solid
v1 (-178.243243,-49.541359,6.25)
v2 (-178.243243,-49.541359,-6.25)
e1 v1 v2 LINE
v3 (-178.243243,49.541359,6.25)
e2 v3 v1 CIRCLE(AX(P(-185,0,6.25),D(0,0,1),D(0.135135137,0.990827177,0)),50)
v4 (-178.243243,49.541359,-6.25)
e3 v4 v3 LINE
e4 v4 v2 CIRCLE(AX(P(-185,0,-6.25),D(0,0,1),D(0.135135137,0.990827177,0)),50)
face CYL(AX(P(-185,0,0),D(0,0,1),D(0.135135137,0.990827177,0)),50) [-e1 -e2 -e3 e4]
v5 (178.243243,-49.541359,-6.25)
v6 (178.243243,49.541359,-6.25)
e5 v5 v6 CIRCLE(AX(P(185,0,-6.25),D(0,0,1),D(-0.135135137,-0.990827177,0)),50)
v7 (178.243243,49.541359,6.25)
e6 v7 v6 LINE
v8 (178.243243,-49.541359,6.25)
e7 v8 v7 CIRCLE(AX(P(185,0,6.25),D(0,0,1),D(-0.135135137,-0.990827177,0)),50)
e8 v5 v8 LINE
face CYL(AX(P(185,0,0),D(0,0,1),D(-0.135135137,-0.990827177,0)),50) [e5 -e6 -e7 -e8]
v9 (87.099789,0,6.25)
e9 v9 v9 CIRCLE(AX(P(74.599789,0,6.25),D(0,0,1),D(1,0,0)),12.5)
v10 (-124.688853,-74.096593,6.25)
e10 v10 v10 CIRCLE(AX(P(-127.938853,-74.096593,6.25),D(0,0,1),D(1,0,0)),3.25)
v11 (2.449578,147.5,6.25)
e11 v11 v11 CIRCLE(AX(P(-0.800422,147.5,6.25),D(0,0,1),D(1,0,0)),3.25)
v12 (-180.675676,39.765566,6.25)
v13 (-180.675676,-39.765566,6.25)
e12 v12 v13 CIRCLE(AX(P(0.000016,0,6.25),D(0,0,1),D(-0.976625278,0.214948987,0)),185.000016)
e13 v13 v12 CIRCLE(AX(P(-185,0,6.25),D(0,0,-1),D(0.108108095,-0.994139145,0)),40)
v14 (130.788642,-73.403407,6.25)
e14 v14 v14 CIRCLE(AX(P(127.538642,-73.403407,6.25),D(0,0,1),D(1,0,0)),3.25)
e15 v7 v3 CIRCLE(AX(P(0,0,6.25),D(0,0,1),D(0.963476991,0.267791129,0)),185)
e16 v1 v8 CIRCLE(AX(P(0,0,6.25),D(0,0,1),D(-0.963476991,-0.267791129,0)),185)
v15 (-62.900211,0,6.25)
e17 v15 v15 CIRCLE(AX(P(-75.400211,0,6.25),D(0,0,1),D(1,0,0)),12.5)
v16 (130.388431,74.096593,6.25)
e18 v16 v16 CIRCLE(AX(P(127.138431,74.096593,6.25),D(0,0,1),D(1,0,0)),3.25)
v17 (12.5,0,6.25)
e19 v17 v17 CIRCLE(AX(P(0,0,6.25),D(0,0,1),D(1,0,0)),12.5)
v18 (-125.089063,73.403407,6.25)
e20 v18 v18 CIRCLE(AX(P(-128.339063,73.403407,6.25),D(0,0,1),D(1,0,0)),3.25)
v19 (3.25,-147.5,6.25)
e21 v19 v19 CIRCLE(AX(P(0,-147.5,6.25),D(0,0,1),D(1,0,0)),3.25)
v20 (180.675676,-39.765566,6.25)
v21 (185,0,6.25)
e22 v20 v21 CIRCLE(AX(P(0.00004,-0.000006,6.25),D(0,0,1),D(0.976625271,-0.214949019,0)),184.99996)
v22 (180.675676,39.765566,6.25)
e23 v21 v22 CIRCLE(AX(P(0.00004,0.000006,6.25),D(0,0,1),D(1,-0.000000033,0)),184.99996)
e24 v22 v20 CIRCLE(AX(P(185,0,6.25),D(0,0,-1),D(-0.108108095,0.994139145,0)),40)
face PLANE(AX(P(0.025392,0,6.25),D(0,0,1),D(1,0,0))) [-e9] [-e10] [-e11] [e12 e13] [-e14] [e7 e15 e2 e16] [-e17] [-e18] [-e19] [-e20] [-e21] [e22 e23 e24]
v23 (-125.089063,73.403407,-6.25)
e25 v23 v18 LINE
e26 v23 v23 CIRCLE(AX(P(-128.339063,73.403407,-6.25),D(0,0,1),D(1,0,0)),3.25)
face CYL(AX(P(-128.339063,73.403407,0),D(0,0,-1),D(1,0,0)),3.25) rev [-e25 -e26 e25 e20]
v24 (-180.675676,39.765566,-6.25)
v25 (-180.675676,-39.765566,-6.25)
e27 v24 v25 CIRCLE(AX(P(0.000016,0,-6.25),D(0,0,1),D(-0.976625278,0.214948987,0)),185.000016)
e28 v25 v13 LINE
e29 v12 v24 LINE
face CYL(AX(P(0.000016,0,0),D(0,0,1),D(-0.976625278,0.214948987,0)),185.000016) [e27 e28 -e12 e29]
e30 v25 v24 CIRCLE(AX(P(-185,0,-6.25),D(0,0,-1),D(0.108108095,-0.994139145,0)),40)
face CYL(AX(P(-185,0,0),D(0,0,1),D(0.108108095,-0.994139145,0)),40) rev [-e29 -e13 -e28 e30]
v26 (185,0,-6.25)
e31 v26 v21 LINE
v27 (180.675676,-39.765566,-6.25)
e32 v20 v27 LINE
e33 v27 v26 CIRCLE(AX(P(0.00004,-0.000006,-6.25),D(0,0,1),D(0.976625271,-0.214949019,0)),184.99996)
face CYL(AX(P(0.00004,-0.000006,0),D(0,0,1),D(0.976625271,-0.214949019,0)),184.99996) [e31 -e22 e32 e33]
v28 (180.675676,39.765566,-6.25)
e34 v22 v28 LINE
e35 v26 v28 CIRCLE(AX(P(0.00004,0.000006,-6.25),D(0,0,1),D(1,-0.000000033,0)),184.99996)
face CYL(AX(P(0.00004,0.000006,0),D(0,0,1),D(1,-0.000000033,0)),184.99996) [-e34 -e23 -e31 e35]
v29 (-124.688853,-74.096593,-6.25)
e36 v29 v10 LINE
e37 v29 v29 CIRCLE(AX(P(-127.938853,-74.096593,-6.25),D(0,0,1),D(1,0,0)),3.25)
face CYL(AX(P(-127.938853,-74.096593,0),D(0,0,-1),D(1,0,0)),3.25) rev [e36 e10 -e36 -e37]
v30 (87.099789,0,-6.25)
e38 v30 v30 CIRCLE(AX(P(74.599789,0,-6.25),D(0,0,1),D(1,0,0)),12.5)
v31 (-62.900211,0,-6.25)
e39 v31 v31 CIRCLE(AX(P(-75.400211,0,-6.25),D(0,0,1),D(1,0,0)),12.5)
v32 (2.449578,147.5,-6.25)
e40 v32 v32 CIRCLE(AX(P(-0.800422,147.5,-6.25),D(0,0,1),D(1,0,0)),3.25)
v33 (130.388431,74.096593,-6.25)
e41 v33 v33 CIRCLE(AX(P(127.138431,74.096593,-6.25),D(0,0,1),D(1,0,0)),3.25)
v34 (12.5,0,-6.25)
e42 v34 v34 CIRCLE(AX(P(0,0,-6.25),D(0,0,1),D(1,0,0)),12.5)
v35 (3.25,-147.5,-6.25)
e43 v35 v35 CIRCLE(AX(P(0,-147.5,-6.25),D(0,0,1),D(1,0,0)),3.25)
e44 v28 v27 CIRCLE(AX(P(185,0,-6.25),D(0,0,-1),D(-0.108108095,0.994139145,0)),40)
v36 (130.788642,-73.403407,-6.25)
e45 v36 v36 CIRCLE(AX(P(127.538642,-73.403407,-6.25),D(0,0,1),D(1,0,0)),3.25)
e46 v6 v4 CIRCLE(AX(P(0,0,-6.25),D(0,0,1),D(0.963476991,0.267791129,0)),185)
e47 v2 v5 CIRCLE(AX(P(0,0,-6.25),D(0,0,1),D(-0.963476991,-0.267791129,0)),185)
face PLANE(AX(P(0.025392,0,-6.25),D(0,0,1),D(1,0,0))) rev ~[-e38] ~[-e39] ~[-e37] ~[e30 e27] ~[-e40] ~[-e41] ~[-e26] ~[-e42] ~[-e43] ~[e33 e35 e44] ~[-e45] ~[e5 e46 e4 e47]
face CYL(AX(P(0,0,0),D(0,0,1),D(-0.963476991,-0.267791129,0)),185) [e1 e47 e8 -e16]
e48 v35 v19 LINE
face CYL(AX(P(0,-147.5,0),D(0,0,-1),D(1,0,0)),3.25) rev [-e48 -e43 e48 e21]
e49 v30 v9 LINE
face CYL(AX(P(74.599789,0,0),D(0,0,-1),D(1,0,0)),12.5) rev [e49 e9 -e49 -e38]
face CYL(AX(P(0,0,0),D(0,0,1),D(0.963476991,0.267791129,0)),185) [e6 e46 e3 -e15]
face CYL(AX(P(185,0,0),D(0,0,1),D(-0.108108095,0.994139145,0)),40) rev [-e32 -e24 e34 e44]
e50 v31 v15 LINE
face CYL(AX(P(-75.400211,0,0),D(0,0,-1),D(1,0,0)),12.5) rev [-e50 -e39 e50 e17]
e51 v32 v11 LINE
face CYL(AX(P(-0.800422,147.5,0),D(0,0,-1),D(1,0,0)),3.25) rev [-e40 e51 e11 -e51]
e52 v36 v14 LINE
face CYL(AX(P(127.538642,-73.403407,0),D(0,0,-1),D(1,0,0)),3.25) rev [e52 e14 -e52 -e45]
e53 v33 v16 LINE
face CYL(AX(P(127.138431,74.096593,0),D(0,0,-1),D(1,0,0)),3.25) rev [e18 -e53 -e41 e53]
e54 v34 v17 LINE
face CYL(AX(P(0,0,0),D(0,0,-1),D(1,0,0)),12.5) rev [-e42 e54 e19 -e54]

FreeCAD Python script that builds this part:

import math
import FreeCAD as App
import Part
import Sketcher
Q = App.Units.Quantity

doc = App.newDocument("Part")
body = doc.addObject("PartDesign::Body", "Body")

sketch1 = doc.addObject("Sketcher::SketchObject", "Sketch")
body.addObject(sketch1)
sketch1.AttachmentSupport = (doc.XY_Plane, [""])
sketch1.MapMode = "FlatFace"
sketch1.addGeometry([
    Part.ArcOfCircle(Part.Circle(App.Vector(0.00004, -0.000006, 0), App.Vector(0, 0, 1), 184.99996), math.radians(-12.412536), math.radians(0.000002)),
    Part.ArcOfCircle(Part.Circle(App.Vector(0.00004, 0.000006, 0), App.Vector(0, 0, 1), 184.99996), math.radians(-0.000002), math.radians(12.412536)),
    Part.ArcOfCircle(Part.Circle(App.Vector(-0.001285, -0.00033, 0), App.Vector(0, 0, 1), 185.001326), math.radians(12.41255), math.radians(15.53286)),
    Part.ArcOfCircle(Part.Circle(App.Vector(0, 0, 0), App.Vector(0, 0, 1), 185), math.radians(15.532868), math.radians(164.467132)),
    Part.ArcOfCircle(Part.Circle(App.Vector(0.001285, -0.00033, 0), App.Vector(0, 0, 1), 185.001326), math.radians(164.46714), math.radians(167.58745)),
    Part.ArcOfCircle(Part.Circle(App.Vector(0.000016, 0, 0), App.Vector(0, 0, 1), 185.000016), math.radians(167.587466), math.radians(192.412534)),
    Part.ArcOfCircle(Part.Circle(App.Vector(0.001285, 0.00033, 0), App.Vector(0, 0, 1), 185.001326), math.radians(-167.58745), math.radians(-164.46714)),
    Part.ArcOfCircle(Part.Circle(App.Vector(0, 0, 0), App.Vector(0, 0, 1), 185), math.radians(-164.467132), math.radians(-15.532868)),
    Part.ArcOfCircle(Part.Circle(App.Vector(-0.001285, 0.00033, 0), App.Vector(0, 0, 1), 185.001326), math.radians(-15.53286), math.radians(-12.41255)),
    Part.Circle(App.Vector(-127.938853, -74.096593, 0), App.Vector(0, 0, 1), 3.25),
    Part.Circle(App.Vector(0, -147.5, 0), App.Vector(0, 0, 1), 3.25),
    Part.Circle(App.Vector(127.538642, -73.403407, 0), App.Vector(0, 0, 1), 3.25),
    Part.Circle(App.Vector(-75.400211, 0, 0), App.Vector(0, 0, 1), 12.5),
    Part.Circle(App.Vector(-128.339063, 73.403407, 0), App.Vector(0, 0, 1), 3.25),
    Part.Circle(App.Vector(-0.800422, 147.5, 0), App.Vector(0, 0, 1), 3.25),
    Part.Circle(App.Vector(0, 0, 0), App.Vector(0, 0, 1), 12.5),
    Part.Circle(App.Vector(74.599789, 0, 0), App.Vector(0, 0, 1), 12.5),
    Part.Circle(App.Vector(127.138431, 74.096593, 0), App.Vector(0, 0, 1), 3.25),
], False)
sketch1.addConstraint([
    Sketcher.Constraint("Coincident", 0, 2, 1, 1),
    Sketcher.Constraint("Coincident", 1, 2, 2, 1),
    Sketcher.Constraint("Coincident", 2, 2, 3, 1),
    Sketcher.Constraint("Coincident", 3, 2, 4, 1),
    Sketcher.Constraint("Coincident", 4, 2, 5, 1),
    Sketcher.Constraint("Coincident", 5, 2, 6, 1),
    Sketcher.Constraint("Coincident", 6, 2, 7, 1),
    Sketcher.Constraint("Coincident", 7, 2, 8, 1),
    Sketcher.Constraint("Coincident", 8, 2, 0, 1),
    Sketcher.Constraint("Coincident", 3, 3, -1, 1),
    Sketcher.Constraint("Coincident", 7, 3, -1, 1),
    Sketcher.Constraint("Coincident", 15, 3, -1, 1),
    Sketcher.Constraint("PointOnObject", 5, 3, -1),
    Sketcher.Constraint("PointOnObject", 10, 3, -2),
    Sketcher.Constraint("PointOnObject", 12, 3, -1),
    Sketcher.Constraint("PointOnObject", 16, 3, -1),
    Sketcher.Constraint("PointOnObject", 0, 2, -1),
    Sketcher.Constraint("Diameter", 12, Q("25 mm")),
    Sketcher.Constraint("Diameter", 15, Q("25 mm")),
    Sketcher.Constraint("Diameter", 16, Q("25 mm")),
    Sketcher.Constraint("Radius", 3, Q("185 mm")),
    Sketcher.Constraint("Radius", 7, Q("185 mm")),
    Sketcher.Constraint("Diameter", 9, Q("6.5 mm")),
    Sketcher.Constraint("Diameter", 10, Q("6.5 mm")),
    Sketcher.Constraint("Diameter", 11, Q("6.5 mm")),
    Sketcher.Constraint("Diameter", 13, Q("6.5 mm")),
    Sketcher.Constraint("Diameter", 14, Q("6.5 mm")),
    Sketcher.Constraint("Diameter", 17, Q("6.5 mm")),
    Sketcher.Constraint("DistanceX", -1, 1, 0, 2, Q("185 mm")),
    Sketcher.Constraint("DistanceY", 10, 3, -1, 1, Q("147.5 mm")),
    Sketcher.Constraint("DistanceY", -1, 1, 14, 3, Q("147.5 mm")),
    Sketcher.Constraint("DistanceY", 9, 3, 13, 3, Q("147.5 mm")),
    Sketcher.Constraint("Radius", 0, Q("184.99996 mm")),
    Sketcher.Constraint("Radius", 1, Q("184.99996 mm")),
    Sketcher.Constraint("Radius", 2, Q("185.001326 mm")),
    Sketcher.Constraint("Radius", 4, Q("185.001326 mm")),
    Sketcher.Constraint("Radius", 5, Q("185.000016 mm")),
    Sketcher.Constraint("Radius", 6, Q("185.001326 mm")),
    Sketcher.Constraint("Radius", 8, Q("185.001326 mm")),
    Sketcher.Constraint("DistanceX", 2, 3, 5, 3, Q("0.001301 mm")),
    Sketcher.Constraint("DistanceX", 8, 3, 5, 3, Q("0.001301 mm")),
    Sketcher.Constraint("DistanceY", 11, 3, 0, 3, Q("73.403401 mm")),
    Sketcher.Constraint("DistanceY", 0, 3, 17, 3, Q("74.096599 mm")),
    Sketcher.Constraint("DistanceX", 11, 3, 2, 2, Q("50.704601 mm")),
    Sketcher.Constraint("DistanceX", 11, 3, 7, 2, Q("50.704601 mm")),
    Sketcher.Constraint("DistanceY", 2, 3, -1, 1, Q("0.00033 mm")),
    Sketcher.Constraint("DistanceX", -1, 1, 11, 3, Q("127.538642 mm")),
    Sketcher.Constraint("DistanceX", 12, 3, -1, 1, Q("75.400211 mm")),
    Sketcher.Constraint("DistanceX", 14, 3, -1, 1, Q("0.800422 mm")),
    Sketcher.Constraint("DistanceX", -1, 1, 16, 3, Q("74.599789 mm")),
    Sketcher.Constraint("DistanceX", -1, 1, 17, 3, Q("127.138431 mm")),
    Sketcher.Constraint("DistanceY", -1, 1, 3, 2, Q("49.541359 mm")),
    Sketcher.Constraint("DistanceY", 6, 2, -1, 1, Q("49.541359 mm")),
    Sketcher.Constraint("DistanceX", 9, 3, 2, 3, Q("127.937568 mm")),
    Sketcher.Constraint("DistanceX", 13, 3, 9, 3, Q("0.40021 mm")),
    Sketcher.Constraint("DistanceX", 6, 3, 1, 2, Q("180.674391 mm")),
    Sketcher.Constraint("DistanceY", 4, 2, 13, 3, Q("33.637841 mm")),
    Sketcher.Constraint("DistanceX", 4, 2, 8, 3, Q("180.674391 mm")),
    Sketcher.Constraint("DistanceY", 11, 3, 8, 2, Q("33.637841 mm")),
    Sketcher.Constraint("DistanceX", 5, 2, -1, 1, Q("180.675676 mm")),
])
pad1 = doc.addObject("PartDesign::Pad", "Pad")
body.addObject(pad1)
pad1.Profile = sketch1
pad1.Length = 12.5
pad1.Midplane = True

sketch2 = doc.addObject("Sketcher::SketchObject", "Sketch001")
body.addObject(sketch2)
sketch2.AttachmentSupport = (doc.XY_Plane, [""])
sketch2.MapMode = "FlatFace"
sketch2.addGeometry([
    Part.ArcOfCircle(Part.Circle(App.Vector(0, 0, 0), App.Vector(0, 0, 1), 185), math.radians(-164.467132), math.radians(-15.532868)),
    Part.ArcOfCircle(Part.Circle(App.Vector(185, 0, 0), App.Vector(0, 0, 1), 50), math.radians(-97.766434), math.radians(97.766434)),
    Part.ArcOfCircle(Part.Circle(App.Vector(0, 0, 0), App.Vector(0, 0, 1), 185), math.radians(15.532868), math.radians(164.467132)),
    Part.ArcOfCircle(Part.Circle(App.Vector(-185, 0, 0), App.Vector(0, 0, 1), 50), math.radians(82.233566), math.radians(277.766434)),
    Part.ArcOfCircle(Part.Circle(App.Vector(0.00004, -0.000006, 0), App.Vector(0, 0, 1), 184.99996), math.radians(-12.412536), math.radians(0.000002)),
    Part.ArcOfCircle(Part.Circle(App.Vector(0.00004, 0.000006, 0), App.Vector(0, 0, 1), 184.99996), math.radians(-0.000002), math.radians(12.412536)),
    Part.ArcOfCircle(Part.Circle(App.Vector(185, 0, 0), App.Vector(0, 0, 1), 40), math.radians(-96.206267), math.radians(96.206267)),
    Part.ArcOfCircle(Part.Circle(App.Vector(0.000016, 0, 0), App.Vector(0, 0, 1), 185.000016), math.radians(167.587466), math.radians(192.412534)),
    Part.ArcOfCircle(Part.Circle(App.Vector(-185, 0, 0), App.Vector(0, 0, 1), 40), math.radians(83.793733), math.radians(276.206267)),
    Part.Circle(App.Vector(-127.938853, -74.096593, 0), App.Vector(0, 0, 1), 3.25),
    Part.Circle(App.Vector(0, -147.5, 0), App.Vector(0, 0, 1), 3.25),
    Part.Circle(App.Vector(127.538642, -73.403407, 0), App.Vector(0, 0, 1), 3.25),
    Part.Circle(App.Vector(-75.400211, 0, 0), App.Vector(0, 0, 1), 12.5),
    Part.Circle(App.Vector(-128.339063, 73.403407, 0), App.Vector(0, 0, 1), 3.25),
    Part.Circle(App.Vector(-0.800422, 147.5, 0), App.Vector(0, 0, 1), 3.25),
    Part.Circle(App.Vector(0, 0, 0), App.Vector(0, 0, 1), 12.5),
    Part.Circle(App.Vector(74.599789, 0, 0), App.Vector(0, 0, 1), 12.5),
    Part.Circle(App.Vector(127.138431, 74.096593, 0), App.Vector(0, 0, 1), 3.25),
], False)
sketch2.addConstraint([
    Sketcher.Constraint("Coincident", 0, 2, 1, 1),
    Sketcher.Constraint("Coincident", 1, 2, 2, 1),
    Sketcher.Constraint("Coincident", 2, 2, 3, 1),
    Sketcher.Constraint("Coincident", 3, 2, 0, 1),
    Sketcher.Constraint("Tangent", 4, 2, 5, 1),
    Sketcher.Constraint("Coincident", 5, 2, 6, 2),
    Sketcher.Constraint("Coincident", 6, 1, 4, 1),
    Sketcher.Constraint("Coincident", 7, 1, 8, 1),
    Sketcher.Constraint("Coincident", 8, 2, 7, 2),
    Sketcher.Constraint("Coincident", 0, 3, -1, 1),
    Sketcher.Constraint("Coincident", 2, 3, -1, 1),
    Sketcher.Constraint("Coincident", 15, 3, -1, 1),
    Sketcher.Constraint("Coincident", 6, 3, 1, 3),
    Sketcher.Constraint("Coincident", 8, 3, 3, 3),
    Sketcher.Constraint("Coincident", 4, 2, 1, 3),
    Sketcher.Constraint("Equal", 0, 2),
    Sketcher.Constraint("Equal", 1, 3),
    Sketcher.Constraint("Equal", 4, 5),
    Sketcher.Constraint("Equal", 6, 8),
    Sketcher.Constraint("Equal", 9, 10),
    Sketcher.Constraint("Equal", 10, 11),
    Sketcher.Constraint("Equal", 11, 13),
    Sketcher.Constraint("Equal", 13, 14),
    Sketcher.Constraint("Equal", 12, 15),
    Sketcher.Constraint("Equal", 15, 16),
    Sketcher.Constraint("Equal", 14, 17),
    Sketcher.Constraint("Symmetric", 1, 3, 3, 3, -1, 1),
    Sketcher.Constraint("Symmetric", 5, 2, 7, 1, -2),
    Sketcher.Constraint("PointOnObject", 7, 3, -1),
    Sketcher.Constraint("PointOnObject", 10, 3, -2),
    Sketcher.Constraint("PointOnObject", 12, 3, -1),
    Sketcher.Constraint("PointOnObject", 16, 3, -1),
    Sketcher.Constraint("Horizontal", 6, 1, 8, 2),
    Sketcher.Constraint("Diameter", 12, Q("25 mm")),
    Sketcher.Constraint("Radius", 0, Q("185 mm")),
    Sketcher.Constraint("Radius", 1, Q("50 mm")),
    Sketcher.Constraint("Radius", 6, Q("40 mm")),
    Sketcher.Constraint("Diameter", 9, Q("6.5 mm")),
    Sketcher.Constraint("DistanceX", -1, 1, 1, 3, Q("185 mm")),
    Sketcher.Constraint("DistanceY", 10, 3, -1, 1, Q("147.5 mm")),
    Sketcher.Constraint("DistanceY", -1, 1, 14, 3, Q("147.5 mm")),
    Sketcher.Constraint("DistanceY", 9, 3, 13, 3, Q("147.5 mm")),
    Sketcher.Constraint("Radius", 4, Q("184.99996 mm")),
    Sketcher.Constraint("Radius", 7, Q("185.000016 mm")),
    Sketcher.Constraint("DistanceY", 11, 3, 4, 3, Q("73.403401 mm")),
    Sketcher.Constraint("DistanceY", 4, 3, 17, 3, Q("74.096599 mm")),
    Sketcher.Constraint("DistanceX", 11, 3, 0, 2, Q("50.704601 mm")),
    Sketcher.Constraint("DistanceX", 12, 3, -1, 1, Q("75.400211 mm")),
    Sketcher.Constraint("DistanceX", 14, 3, -1, 1, Q("0.800422 mm")),
    Sketcher.Constraint("DistanceX", -1, 1, 16, 3, Q("74.599789 mm")),
    Sketcher.Constraint("DistanceX", -1, 1, 17, 3, Q("127.138431 mm")),
    Sketcher.Constraint("DistanceX", 9, 3, 7, 3, Q("127.938869 mm")),
    Sketcher.Constraint("DistanceX", 13, 3, 9, 3, Q("0.40021 mm")),
    Sketcher.Constraint("DistanceY", 7, 1, 13, 3, Q("33.637841 mm")),
])
pad2 = doc.addObject("PartDesign::Pad", "Pad001")
body.addObject(pad2)
pad2.Profile = sketch2
pad2.Length = 10
pad2.Midplane = True

sketch3 = doc.addObject("Sketcher::SketchObject", "Sketch002")
body.addObject(sketch3)
sketch3.AttachmentSupport = (doc.XY_Plane, [""])
sketch3.MapMode = "FlatFace"
sketch3.addGeometry([
    Part.ArcOfCircle(Part.Circle(App.Vector(0, 0, 0), App.Vector(0, 0, 1), 185), math.radians(-164.467132), math.radians(-15.532868)),
    Part.ArcOfCircle(Part.Circle(App.Vector(185, 0, 0), App.Vector(0, 0, 1), 50), math.radians(-97.766434), math.radians(97.766434)),
    Part.ArcOfCircle(Part.Circle(App.Vector(0, 0, 0), App.Vector(0, 0, 1), 185), math.radians(15.532868), math.radians(164.467132)),
    Part.ArcOfCircle(Part.Circle(App.Vector(-185, 0, 0), App.Vector(0, 0, 1), 50), math.radians(82.233566), math.radians(277.766434)),
    Part.ArcOfCircle(Part.Circle(App.Vector(0.00004, -0.000006, 0), App.Vector(0, 0, 1), 184.99996), math.radians(-12.412536), math.radians(0.000002)),
    Part.ArcOfCircle(Part.Circle(App.Vector(0.00004, 0.000006, 0), App.Vector(0, 0, 1), 184.99996), math.radians(-0.000002), math.radians(12.412536)),
    Part.ArcOfCircle(Part.Circle(App.Vector(185, 0, 0), App.Vector(0, 0, 1), 40), math.radians(-96.206267), math.radians(96.206267)),
    Part.ArcOfCircle(Part.Circle(App.Vector(0.000016, 0, 0), App.Vector(0, 0, 1), 185.000016), math.radians(167.587466), math.radians(192.412534)),
    Part.ArcOfCircle(Part.Circle(App.Vector(-185, 0, 0), App.Vector(0, 0, 1), 40), math.radians(83.793733), math.radians(276.206267)),
    Part.Circle(App.Vector(-127.938853, -74.096593, 0), App.Vector(0, 0, 1), 3.25),
    Part.Circle(App.Vector(0, -147.5, 0), App.Vector(0, 0, 1), 3.25),
    Part.Circle(App.Vector(127.538642, -73.403407, 0), App.Vector(0, 0, 1), 3.25),
    Part.Circle(App.Vector(-75.400211, 0, 0), App.Vector(0, 0, 1), 12.5),
    Part.Circle(App.Vector(-128.339063, 73.403407, 0), App.Vector(0, 0, 1), 3.25),
    Part.Circle(App.Vector(-0.800422, 147.5, 0), App.Vector(0, 0, 1), 3.25),
    Part.Circle(App.Vector(0, 0, 0), App.Vector(0, 0, 1), 12.5),
    Part.Circle(App.Vector(74.599789, 0, 0), App.Vector(0, 0, 1), 12.5),
    Part.Circle(App.Vector(127.138431, 74.096593, 0), App.Vector(0, 0, 1), 3.25),
], False)
sketch3.addConstraint([
    Sketcher.Constraint("Coincident", 0, 2, 1, 1),
    Sketcher.Constraint("Coincident", 1, 2, 2, 1),
    Sketcher.Constraint("Coincident", 2, 2, 3, 1),
    Sketcher.Constraint("Coincident", 3, 2, 0, 1),
    Sketcher.Constraint("Tangent", 4, 2, 5, 1),
    Sketcher.Constraint("Coincident", 5, 2, 6, 2),
    Sketcher.Constraint("Coincident", 6, 1, 4, 1),
    Sketcher.Constraint("Coincident", 7, 1, 8, 1),
    Sketcher.Constraint("Coincident", 8, 2, 7, 2),
    Sketcher.Constraint("Coincident", 0, 3, -1, 1),
    Sketcher.Constraint("Coincident", 2, 3, -1, 1),
    Sketcher.Constraint("Coincident", 15, 3, -1, 1),
    Sketcher.Constraint("Coincident", 6, 3, 1, 3),
    Sketcher.Constraint("Coincident", 8, 3, 3, 3),
    Sketcher.Constraint("Coincident", 4, 2, 1, 3),
    Sketcher.Constraint("Equal", 0, 2),
    Sketcher.Constraint("Equal", 1, 3),
    Sketcher.Constraint("Equal", 4, 5),
    Sketcher.Constraint("Equal", 6, 8),
    Sketcher.Constraint("Equal", 9, 10),
    Sketcher.Constraint("Equal", 10, 11),
    Sketcher.Constraint("Equal", 11, 13),
    Sketcher.Constraint("Equal", 13, 14),
    Sketcher.Constraint("Equal", 12, 15),
    Sketcher.Constraint("Equal", 15, 16),
    Sketcher.Constraint("Equal", 14, 17),
    Sketcher.Constraint("Symmetric", 1, 3, 3, 3, -1, 1),
    Sketcher.Constraint("Symmetric", 5, 2, 7, 1, -2),
    Sketcher.Constraint("PointOnObject", 7, 3, -1),
    Sketcher.Constraint("PointOnObject", 10, 3, -2),
    Sketcher.Constraint("PointOnObject", 12, 3, -1),
    Sketcher.Constraint("PointOnObject", 16, 3, -1),
    Sketcher.Constraint("Horizontal", 6, 1, 8, 2),
    Sketcher.Constraint("Diameter", 12, Q("25 mm")),
    Sketcher.Constraint("Radius", 0, Q("185 mm")),
    Sketcher.Constraint("Radius", 1, Q("50 mm")),
    Sketcher.Constraint("Radius", 6, Q("40 mm")),
    Sketcher.Constraint("Diameter", 9, Q("6.5 mm")),
    Sketcher.Constraint("DistanceX", -1, 1, 1, 3, Q("185 mm")),
    Sketcher.Constraint("DistanceY", 10, 3, -1, 1, Q("147.5 mm")),
    Sketcher.Constraint("DistanceY", -1, 1, 14, 3, Q("147.5 mm")),
    Sketcher.Constraint("DistanceY", 9, 3, 13, 3, Q("147.5 mm")),
    Sketcher.Constraint("Radius", 4, Q("184.99996 mm")),
    Sketcher.Constraint("Radius", 7, Q("185.000016 mm")),
    Sketcher.Constraint("DistanceY", 11, 3, 4, 3, Q("73.403401 mm")),
    Sketcher.Constraint("DistanceY", 4, 3, 17, 3, Q("74.096599 mm")),
    Sketcher.Constraint("DistanceX", 11, 3, 0, 2, Q("50.704601 mm")),
    Sketcher.Constraint("DistanceX", 12, 3, -1, 1, Q("75.400211 mm")),
    Sketcher.Constraint("DistanceX", 14, 3, -1, 1, Q("0.800422 mm")),
    Sketcher.Constraint("DistanceX", -1, 1, 16, 3, Q("74.599789 mm")),
    Sketcher.Constraint("DistanceX", -1, 1, 17, 3, Q("127.138431 mm")),
    Sketcher.Constraint("DistanceX", 9, 3, 7, 3, Q("127.938869 mm")),
    Sketcher.Constraint("DistanceX", 13, 3, 9, 3, Q("0.40021 mm")),
    Sketcher.Constraint("DistanceY", 7, 1, 13, 3, Q("33.637841 mm")),
])
pad3 = doc.addObject("PartDesign::Pad", "Pad002")
body.addObject(pad3)
pad3.Profile = sketch3
pad3.Length = 12.5
pad3.Midplane = True

doc.recompute()
